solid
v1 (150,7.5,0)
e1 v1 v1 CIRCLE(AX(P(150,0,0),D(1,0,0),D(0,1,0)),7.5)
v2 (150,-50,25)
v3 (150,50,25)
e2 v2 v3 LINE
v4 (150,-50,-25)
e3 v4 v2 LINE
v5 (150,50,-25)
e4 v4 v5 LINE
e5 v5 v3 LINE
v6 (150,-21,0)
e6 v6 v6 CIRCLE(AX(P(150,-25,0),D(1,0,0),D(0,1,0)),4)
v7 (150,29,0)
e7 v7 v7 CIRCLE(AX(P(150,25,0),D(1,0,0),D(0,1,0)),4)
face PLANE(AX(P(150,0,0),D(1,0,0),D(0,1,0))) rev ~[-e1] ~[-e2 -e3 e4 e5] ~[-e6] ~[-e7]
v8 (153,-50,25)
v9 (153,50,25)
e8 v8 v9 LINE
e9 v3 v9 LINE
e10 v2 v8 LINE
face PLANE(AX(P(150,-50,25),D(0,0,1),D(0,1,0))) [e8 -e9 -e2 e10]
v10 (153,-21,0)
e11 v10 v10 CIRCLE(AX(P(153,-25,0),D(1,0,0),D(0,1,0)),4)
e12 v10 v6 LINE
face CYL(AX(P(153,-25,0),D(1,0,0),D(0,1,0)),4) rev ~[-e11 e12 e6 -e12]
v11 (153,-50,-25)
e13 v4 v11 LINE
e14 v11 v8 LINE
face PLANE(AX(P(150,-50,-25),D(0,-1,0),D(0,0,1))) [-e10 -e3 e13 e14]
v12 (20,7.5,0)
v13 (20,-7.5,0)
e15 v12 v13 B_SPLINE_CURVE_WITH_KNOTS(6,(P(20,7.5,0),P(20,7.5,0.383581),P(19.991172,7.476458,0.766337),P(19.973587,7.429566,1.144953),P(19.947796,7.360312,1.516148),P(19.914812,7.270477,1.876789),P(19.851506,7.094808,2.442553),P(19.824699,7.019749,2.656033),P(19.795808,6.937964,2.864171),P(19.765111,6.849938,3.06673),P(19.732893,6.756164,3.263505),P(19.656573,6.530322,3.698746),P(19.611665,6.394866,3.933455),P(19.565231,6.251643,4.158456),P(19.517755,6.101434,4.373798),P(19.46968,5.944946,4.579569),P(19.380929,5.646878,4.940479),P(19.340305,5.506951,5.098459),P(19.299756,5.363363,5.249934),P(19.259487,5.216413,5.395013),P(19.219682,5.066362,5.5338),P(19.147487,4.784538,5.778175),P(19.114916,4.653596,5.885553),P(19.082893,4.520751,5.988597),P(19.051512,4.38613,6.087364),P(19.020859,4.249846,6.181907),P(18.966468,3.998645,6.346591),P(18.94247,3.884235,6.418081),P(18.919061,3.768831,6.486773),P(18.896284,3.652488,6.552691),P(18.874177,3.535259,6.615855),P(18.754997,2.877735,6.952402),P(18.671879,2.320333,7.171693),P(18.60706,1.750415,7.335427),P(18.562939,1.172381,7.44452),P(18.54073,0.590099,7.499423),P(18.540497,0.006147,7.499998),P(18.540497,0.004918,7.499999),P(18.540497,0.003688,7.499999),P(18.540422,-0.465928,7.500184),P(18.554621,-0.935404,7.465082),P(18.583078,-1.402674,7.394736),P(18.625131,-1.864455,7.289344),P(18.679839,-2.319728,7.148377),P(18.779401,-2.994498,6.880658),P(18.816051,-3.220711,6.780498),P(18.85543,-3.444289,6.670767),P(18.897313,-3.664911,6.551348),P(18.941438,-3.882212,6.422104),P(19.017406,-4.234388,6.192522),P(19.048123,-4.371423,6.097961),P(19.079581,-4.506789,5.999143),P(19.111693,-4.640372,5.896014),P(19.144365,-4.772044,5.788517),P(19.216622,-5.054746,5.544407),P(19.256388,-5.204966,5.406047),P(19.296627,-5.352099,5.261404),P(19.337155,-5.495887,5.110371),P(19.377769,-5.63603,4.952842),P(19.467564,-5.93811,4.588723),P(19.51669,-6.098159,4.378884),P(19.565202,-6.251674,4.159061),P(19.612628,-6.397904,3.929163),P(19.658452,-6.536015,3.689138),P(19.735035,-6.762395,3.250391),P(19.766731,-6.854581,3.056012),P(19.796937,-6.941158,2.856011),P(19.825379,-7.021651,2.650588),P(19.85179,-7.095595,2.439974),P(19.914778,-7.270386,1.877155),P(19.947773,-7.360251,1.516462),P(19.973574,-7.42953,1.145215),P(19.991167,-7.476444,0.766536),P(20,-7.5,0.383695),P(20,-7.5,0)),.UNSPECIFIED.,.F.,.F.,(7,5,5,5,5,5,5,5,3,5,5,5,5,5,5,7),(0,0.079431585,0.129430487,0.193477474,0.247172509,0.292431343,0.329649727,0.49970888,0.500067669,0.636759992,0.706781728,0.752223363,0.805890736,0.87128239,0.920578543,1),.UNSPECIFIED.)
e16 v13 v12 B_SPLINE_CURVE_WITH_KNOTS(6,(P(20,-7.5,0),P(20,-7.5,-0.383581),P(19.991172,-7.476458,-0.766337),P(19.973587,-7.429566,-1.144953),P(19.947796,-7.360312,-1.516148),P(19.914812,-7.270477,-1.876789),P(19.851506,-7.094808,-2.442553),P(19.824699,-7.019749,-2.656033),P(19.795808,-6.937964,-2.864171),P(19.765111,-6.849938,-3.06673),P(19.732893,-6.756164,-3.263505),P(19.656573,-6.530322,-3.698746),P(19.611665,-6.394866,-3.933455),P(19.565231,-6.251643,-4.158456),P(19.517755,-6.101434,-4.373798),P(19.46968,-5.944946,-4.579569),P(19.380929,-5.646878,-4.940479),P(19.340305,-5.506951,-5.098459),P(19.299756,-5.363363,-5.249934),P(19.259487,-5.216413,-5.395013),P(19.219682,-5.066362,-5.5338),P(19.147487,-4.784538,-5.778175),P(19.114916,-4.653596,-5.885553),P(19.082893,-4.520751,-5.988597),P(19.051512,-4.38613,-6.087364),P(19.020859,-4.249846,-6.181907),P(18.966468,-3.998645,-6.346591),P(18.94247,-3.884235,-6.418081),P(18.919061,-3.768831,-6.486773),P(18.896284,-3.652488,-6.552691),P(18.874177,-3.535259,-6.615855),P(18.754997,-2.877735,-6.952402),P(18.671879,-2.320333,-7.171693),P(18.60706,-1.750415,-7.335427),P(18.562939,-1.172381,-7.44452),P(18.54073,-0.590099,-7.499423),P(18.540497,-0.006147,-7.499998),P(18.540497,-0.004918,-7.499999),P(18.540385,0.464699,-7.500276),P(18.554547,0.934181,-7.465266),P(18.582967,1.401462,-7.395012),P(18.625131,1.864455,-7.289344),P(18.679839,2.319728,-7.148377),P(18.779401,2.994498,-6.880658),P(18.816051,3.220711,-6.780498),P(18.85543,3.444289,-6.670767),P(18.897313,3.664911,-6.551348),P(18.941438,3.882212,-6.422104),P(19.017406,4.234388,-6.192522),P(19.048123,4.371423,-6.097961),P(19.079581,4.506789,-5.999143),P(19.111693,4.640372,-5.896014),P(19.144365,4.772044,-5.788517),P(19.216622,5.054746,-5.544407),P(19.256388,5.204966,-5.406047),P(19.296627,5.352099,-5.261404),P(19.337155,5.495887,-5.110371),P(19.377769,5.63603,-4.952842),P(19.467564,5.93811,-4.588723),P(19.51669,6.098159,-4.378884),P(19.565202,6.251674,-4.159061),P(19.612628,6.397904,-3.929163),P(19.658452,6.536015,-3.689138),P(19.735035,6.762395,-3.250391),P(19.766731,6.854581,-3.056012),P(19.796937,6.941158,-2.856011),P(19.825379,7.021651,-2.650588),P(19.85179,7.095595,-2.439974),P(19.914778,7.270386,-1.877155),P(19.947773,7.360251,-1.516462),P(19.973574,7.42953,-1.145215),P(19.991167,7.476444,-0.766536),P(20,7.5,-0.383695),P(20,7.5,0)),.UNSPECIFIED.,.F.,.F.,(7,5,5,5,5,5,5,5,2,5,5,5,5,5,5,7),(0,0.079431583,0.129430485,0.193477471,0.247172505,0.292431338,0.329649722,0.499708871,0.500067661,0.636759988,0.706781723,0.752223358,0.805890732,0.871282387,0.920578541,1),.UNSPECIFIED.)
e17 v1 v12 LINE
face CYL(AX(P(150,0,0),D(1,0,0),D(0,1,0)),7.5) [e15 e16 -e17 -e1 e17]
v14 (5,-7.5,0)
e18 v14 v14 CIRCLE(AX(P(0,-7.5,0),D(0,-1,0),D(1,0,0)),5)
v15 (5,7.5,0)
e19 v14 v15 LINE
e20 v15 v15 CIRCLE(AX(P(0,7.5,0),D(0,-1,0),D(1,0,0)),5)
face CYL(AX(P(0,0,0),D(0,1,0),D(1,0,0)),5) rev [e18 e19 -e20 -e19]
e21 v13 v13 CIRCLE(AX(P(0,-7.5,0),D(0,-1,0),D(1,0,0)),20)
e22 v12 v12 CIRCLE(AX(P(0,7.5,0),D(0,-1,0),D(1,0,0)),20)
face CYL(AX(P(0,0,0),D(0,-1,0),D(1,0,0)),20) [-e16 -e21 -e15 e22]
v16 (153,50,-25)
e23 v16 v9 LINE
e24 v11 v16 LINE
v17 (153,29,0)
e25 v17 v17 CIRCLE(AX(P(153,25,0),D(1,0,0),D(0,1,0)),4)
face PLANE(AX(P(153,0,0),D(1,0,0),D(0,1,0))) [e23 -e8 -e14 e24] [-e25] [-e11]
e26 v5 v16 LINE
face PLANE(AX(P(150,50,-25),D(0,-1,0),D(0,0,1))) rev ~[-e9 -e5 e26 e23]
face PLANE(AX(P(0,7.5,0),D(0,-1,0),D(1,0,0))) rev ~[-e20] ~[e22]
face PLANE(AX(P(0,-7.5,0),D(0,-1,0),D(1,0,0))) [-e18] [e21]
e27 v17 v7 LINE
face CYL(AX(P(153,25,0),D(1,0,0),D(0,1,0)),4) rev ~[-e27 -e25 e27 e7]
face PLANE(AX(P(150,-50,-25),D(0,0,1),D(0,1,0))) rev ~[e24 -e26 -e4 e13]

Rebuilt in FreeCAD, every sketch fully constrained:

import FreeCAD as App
import Part
import Sketcher
Q = App.Units.Quantity

doc = App.newDocument("Part")
params = doc.addObject("Spreadsheet::Sheet", "Params")
for row, (alias, value) in enumerate([
    ("sketch1_diameter", "40 mm"),
    ("sketch1_diameter2", "10 mm"),
    ("pad1_length", "15 mm"),
    ("sketch2_diameter", "15 mm"),
    ("sketch3_width", "100 mm"),
    ("sketch3_height", "50 mm"),
    ("pad3_length", "3 mm"),
    ("sketch4_diameter", "8 mm"),
], start=1):
    params.set(f"A{row}", alias)
    params.set(f"B{row}", "=" + value)
    params.setAlias(f"B{row}", alias)

body = doc.addObject("PartDesign::Body", "Body")

# Sketch on XZ plane
sketch1 = body.newObject("Sketcher::SketchObject", "Sketch")
sketch1.AttachmentSupport = (doc.getObject("XZ_Plane"), [""])
sketch1.MapMode = "FlatFace"
sketch1.addGeometry(Part.Circle(App.Vector(0, 0, 0), App.Vector(0, 0, 1), 20), False)
sketch1.addGeometry(Part.Circle(App.Vector(0, 0, 0), App.Vector(0, 0, 1), 5), False)
sketch1.addConstraint(Sketcher.Constraint("Coincident", 0, 3, -1, 1))
sketch1.addConstraint(Sketcher.Constraint("Coincident", 1, 3, -1, 1))
sketch1.addConstraint(Sketcher.Constraint("Diameter", 0, Q("40 mm")))
sketch1.addConstraint(Sketcher.Constraint("Diameter", 1, Q("10 mm")))
sketch1.setExpression("Constraints[2]", "Params.sketch1_diameter")
sketch1.setExpression("Constraints[3]", "Params.sketch1_diameter2")
pad1 = body.newObject("PartDesign::Pad", "Pad")
pad1.Profile = sketch1
pad1.setExpression("Length", "Params.pad1_length")
pad1.Midplane = True

# Sketch on YZ plane
sketch2 = body.newObject("Sketcher::SketchObject", "Sketch001")
sketch2.AttachmentSupport = (doc.getObject("YZ_Plane"), [""])
sketch2.MapMode = "FlatFace"
sketch2.AttachmentOffset = App.Placement(App.Vector(0, 0, 150), App.Rotation())
sketch2.addGeometry(Part.Circle(App.Vector(0, 0, 0), App.Vector(0, 0, 1), 7.5), False)
sketch2.addConstraint(Sketcher.Constraint("Coincident", 0, 3, -1, 1))
sketch2.addConstraint(Sketcher.Constraint("Diameter", 0, Q("15 mm")))
sketch2.setExpression("Constraints[1]", "Params.sketch2_diameter")
pad2 = body.newObject("PartDesign::Pad", "Pad001")
pad2.Profile = sketch2
pad2.Type = "UpToLast"
pad2.Reversed = True

# Sketch on YZ plane
sketch3 = body.newObject("Sketcher::SketchObject", "Sketch002")
sketch3.AttachmentSupport = (doc.getObject("YZ_Plane"), [""])
sketch3.MapMode = "FlatFace"
sketch3.AttachmentOffset = App.Placement(App.Vector(0, 0, 150), App.Rotation())
sketch3.addGeometry(Part.LineSegment(App.Vector(-50, 25, 0), App.Vector(-50, -25, 0)), False)
sketch3.addGeometry(Part.LineSegment(App.Vector(-50, -25, 0), App.Vector(50, -25, 0)), False)
sketch3.addGeometry(Part.LineSegment(App.Vector(50, -25, 0), App.Vector(50, 25, 0)), False)
sketch3.addGeometry(Part.LineSegment(App.Vector(50, 25, 0), App.Vector(-50, 25, 0)), False)
sketch3.addConstraint(Sketcher.Constraint("Coincident", 0, 2, 1, 1))
sketch3.addConstraint(Sketcher.Constraint("Coincident", 1, 2, 2, 1))
sketch3.addConstraint(Sketcher.Constraint("Coincident", 2, 2, 3, 1))
sketch3.addConstraint(Sketcher.Constraint("Coincident", 3, 2, 0, 1))
sketch3.addConstraint(Sketcher.Constraint("Vertical", 0))
sketch3.addConstraint(Sketcher.Constraint("Horizontal", 1))
sketch3.addConstraint(Sketcher.Constraint("Vertical", 2))
sketch3.addConstraint(Sketcher.Constraint("Horizontal", 3))
sketch3.addConstraint(Sketcher.Constraint("Symmetric", 0, 2, 2, 2, -1, 1))
sketch3.addConstraint(Sketcher.Constraint("DistanceX", 1, 1, 1, 2, Q("100 mm")))
sketch3.addConstraint(Sketcher.Constraint("DistanceY", 0, 2, 0, 1, Q("50 mm")))
sketch3.setExpression("Constraints[9]", "Params.sketch3_width")
sketch3.setExpression("Constraints[10]", "Params.sketch3_height")
pad3 = body.newObject("PartDesign::Pad", "Pad002")
pad3.Profile = sketch3
pad3.setExpression("Length", "Params.pad3_length")

# Sketch on YZ plane
sketch4 = body.newObject("Sketcher::SketchObject", "Sketch003")
sketch4.AttachmentSupport = (doc.getObject("YZ_Plane"), [""])
sketch4.MapMode = "FlatFace"
sketch4.AttachmentOffset = App.Placement(App.Vector(0, 0, 153), App.Rotation())
sketch4.addGeometry(Part.Circle(App.Vector(-25, 0, 0), App.Vector(0, 0, 1), 4), False)
sketch4.addGeometry(Part.Circle(App.Vector(25, 0, 0), App.Vector(0, 0, 1), 4), False)
sketch4.addConstraint(Sketcher.Constraint("Equal", 0, 1))
sketch4.addConstraint(Sketcher.Constraint("Symmetric", 0, 3, 1, 3, -1, 1))
sketch4.addConstraint(Sketcher.Constraint("PointOnObject", 0, 3, -1))
sketch4.addConstraint(Sketcher.Constraint("Diameter", 0, Q("8 mm")))
sketch4.addConstraint(Sketcher.Constraint("DistanceX", 0, 3, -1, 1, Q("25 mm")))
sketch4.setExpression("Constraints[3]", "Params.sketch4_diameter")
pocket1 = body.newObject("PartDesign::Pocket", "Pocket")
pocket1.Profile = sketch4
pocket1.Type = "ThroughAll"

doc.recompute()
